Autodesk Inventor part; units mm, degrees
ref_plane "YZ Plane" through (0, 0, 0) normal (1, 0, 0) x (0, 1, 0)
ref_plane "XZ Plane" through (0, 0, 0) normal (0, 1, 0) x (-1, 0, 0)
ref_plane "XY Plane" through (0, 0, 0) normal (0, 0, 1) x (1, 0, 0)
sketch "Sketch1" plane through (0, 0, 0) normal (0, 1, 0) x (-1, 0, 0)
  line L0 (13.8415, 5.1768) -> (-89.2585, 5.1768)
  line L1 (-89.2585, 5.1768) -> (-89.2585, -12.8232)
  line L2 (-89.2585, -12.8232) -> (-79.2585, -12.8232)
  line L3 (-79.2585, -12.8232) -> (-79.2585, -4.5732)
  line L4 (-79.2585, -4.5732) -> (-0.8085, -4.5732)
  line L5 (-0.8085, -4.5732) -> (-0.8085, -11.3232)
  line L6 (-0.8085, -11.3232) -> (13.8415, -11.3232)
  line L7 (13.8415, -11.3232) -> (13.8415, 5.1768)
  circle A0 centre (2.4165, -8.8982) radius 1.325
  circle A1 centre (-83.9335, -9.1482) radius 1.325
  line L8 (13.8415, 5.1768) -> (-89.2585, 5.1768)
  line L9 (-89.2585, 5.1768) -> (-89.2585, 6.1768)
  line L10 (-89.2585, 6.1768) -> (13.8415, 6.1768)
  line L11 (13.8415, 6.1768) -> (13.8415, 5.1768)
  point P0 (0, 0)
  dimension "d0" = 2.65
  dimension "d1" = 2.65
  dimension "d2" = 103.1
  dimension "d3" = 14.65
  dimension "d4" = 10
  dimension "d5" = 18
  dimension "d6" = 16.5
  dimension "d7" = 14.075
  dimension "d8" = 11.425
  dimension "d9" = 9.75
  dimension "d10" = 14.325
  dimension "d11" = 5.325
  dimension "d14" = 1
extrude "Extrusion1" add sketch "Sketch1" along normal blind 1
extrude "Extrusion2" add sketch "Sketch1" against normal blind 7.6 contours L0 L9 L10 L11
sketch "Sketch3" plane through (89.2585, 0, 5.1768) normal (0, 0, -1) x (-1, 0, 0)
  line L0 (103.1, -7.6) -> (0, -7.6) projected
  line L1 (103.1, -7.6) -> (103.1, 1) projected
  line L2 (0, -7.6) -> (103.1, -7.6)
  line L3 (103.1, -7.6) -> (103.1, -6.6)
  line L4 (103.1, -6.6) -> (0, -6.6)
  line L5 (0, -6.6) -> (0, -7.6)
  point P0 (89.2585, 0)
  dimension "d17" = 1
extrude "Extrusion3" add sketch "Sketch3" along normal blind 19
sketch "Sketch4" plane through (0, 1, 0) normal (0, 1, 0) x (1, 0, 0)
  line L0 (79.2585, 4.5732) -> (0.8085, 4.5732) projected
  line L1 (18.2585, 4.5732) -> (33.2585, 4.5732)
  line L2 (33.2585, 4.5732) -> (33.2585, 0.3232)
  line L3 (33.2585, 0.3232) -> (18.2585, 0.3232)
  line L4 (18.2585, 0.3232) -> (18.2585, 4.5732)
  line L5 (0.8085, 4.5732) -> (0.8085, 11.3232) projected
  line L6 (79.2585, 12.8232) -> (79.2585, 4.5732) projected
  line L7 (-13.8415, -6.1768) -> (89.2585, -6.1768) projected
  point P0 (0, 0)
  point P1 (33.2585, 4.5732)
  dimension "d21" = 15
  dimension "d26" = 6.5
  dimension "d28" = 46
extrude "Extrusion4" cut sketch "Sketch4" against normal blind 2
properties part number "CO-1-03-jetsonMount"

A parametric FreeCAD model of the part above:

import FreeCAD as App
import Part
import Sketcher

doc = App.newDocument("Part")
body = doc.addObject("PartDesign::Body", "Body")

sketch1 = body.newObject("Sketcher::SketchObject", "Sketch")
sketch1.AttachmentSupport = (doc.getObject("XZ_Plane"), [""])
sketch1.MapMode = "FlatFace"
sketch1.addGeometry([
    Part.LineSegment(App.Vector(-13.8, -11.3, 0), App.Vector(-13.8, 6.2, 0)),
    Part.LineSegment(App.Vector(-13.8, 6.2, 0), App.Vector(89.3, 6.2, 0)),
    Part.LineSegment(App.Vector(89.3, 6.2, 0), App.Vector(89.3, -12.8, 0)),
    Part.LineSegment(App.Vector(89.3, -12.8, 0), App.Vector(79.3, -12.8, 0)),
    Part.LineSegment(App.Vector(79.3, -12.8, 0), App.Vector(79.3, -4.6, 0)),
    Part.LineSegment(App.Vector(79.3, -4.6, 0), App.Vector(0.8, -4.6, 0)),
    Part.LineSegment(App.Vector(0.8, -4.6, 0), App.Vector(0.8, -11.3, 0)),
    Part.LineSegment(App.Vector(0.8, -11.3, 0), App.Vector(-13.8, -11.3, 0)),
    Part.Circle(App.Vector(83.9, -9.1, 0), App.Vector(0, 0, 1), 1.3),
    Part.Circle(App.Vector(-2.4, -8.9, 0), App.Vector(0, 0, 1), 1.3),
], False)
sketch1.addConstraint([
    Sketcher.Constraint("Coincident", 0, 2, 1, 1),
    Sketcher.Constraint("Coincident", 1, 2, 2, 1),
    Sketcher.Constraint("Coincident", 2, 2, 3, 1),
    Sketcher.Constraint("Coincident", 3, 2, 4, 1),
    Sketcher.Constraint("Coincident", 4, 2, 5, 1),
    Sketcher.Constraint("Coincident", 5, 2, 6, 1),
    Sketcher.Constraint("Coincident", 6, 2, 7, 1),
    Sketcher.Constraint("Coincident", 7, 2, 0, 1),
    Sketcher.Constraint("Vertical", 0),
    Sketcher.Constraint("Horizontal", 1),
    Sketcher.Constraint("Vertical", 2),
    Sketcher.Constraint("Horizontal", 3),
    Sketcher.Constraint("Vertical", 4),
    Sketcher.Constraint("Horizontal", 5),
    Sketcher.Constraint("Vertical", 6),
    Sketcher.Constraint("Horizontal", 7),
    Sketcher.Constraint("Equal", 8, 9),
    Sketcher.Constraint("Diameter", 8, 2.65),
    Sketcher.Constraint("DistanceX", 3, 2, 3, 1, 10.0),
    Sketcher.Constraint("DistanceX", 1, 1, 1, 2, 103.1),
    Sketcher.Constraint("DistanceX", 7, 2, 7, 1, 14.65),
    Sketcher.Constraint("DistanceY", 2, 2, 2, 1, 19.0),
    Sketcher.Constraint("DistanceY", 0, 1, 0, 2, 17.5),
    Sketcher.Constraint("DistanceX", 0, 2, 9, 3, 11.425),
    Sketcher.Constraint("DistanceX", 8, 3, 1, 2, 5.325),
    Sketcher.Constraint("DistanceY", 4, 1, 4, 2, 8.25),
    Sketcher.Constraint("DistanceY", 8, 3, 9, 3, 0.25),
    Sketcher.Constraint("DistanceY", 9, 3, 0, 2, 15.075),
    Sketcher.Constraint("DistanceX", -1, 1, 8, 3, 83.9335),
    Sketcher.Constraint("DistanceY", 8, 3, -1, 1, 9.1482),
])
pad1 = body.newObject("PartDesign::Pad", "Pad")
pad1.Profile = sketch1
pad1.Length = 1
pad1.Reversed = True

sketch2 = body.newObject("Sketcher::SketchObject", "Sketch001")
sketch2.AttachmentSupport = (doc.getObject("XZ_Plane"), [""])
sketch2.MapMode = "FlatFace"
sketch2.addGeometry([
    Part.LineSegment(App.Vector(89.3, 5.2, 0), App.Vector(-13.8, 5.2, 0)),
    Part.LineSegment(App.Vector(-13.8, 5.2, 0), App.Vector(-13.8, 6.2, 0)),
    Part.LineSegment(App.Vector(-13.8, 6.2, 0), App.Vector(89.3, 6.2, 0)),
    Part.LineSegment(App.Vector(89.3, 6.2, 0), App.Vector(89.3, 5.2, 0)),
], False)
sketch2.addConstraint([
    Sketcher.Constraint("Coincident", 0, 2, 1, 1),
    Sketcher.Constraint("Coincident", 1, 2, 2, 1),
    Sketcher.Constraint("Coincident", 2, 2, 3, 1),
    Sketcher.Constraint("Coincident", 3, 2, 0, 1),
    Sketcher.Constraint("Horizontal", 0),
    Sketcher.Constraint("Vertical", 1),
    Sketcher.Constraint("Horizontal", 2),
    Sketcher.Constraint("Vertical", 3),
    Sketcher.Constraint("DistanceY", 1, 1, 1, 2, 1.0),
    Sketcher.Constraint("DistanceX", 0, 2, 0, 1, 103.1),
    Sketcher.Constraint("DistanceX", 0, 2, -1, 1, 13.8415),
    Sketcher.Constraint("DistanceY", -1, 1, 0, 2, 5.1768),
])
pad2 = body.newObject("PartDesign::Pad", "Pad001")
pad2.Profile = sketch2
pad2.Length = 7.6

sketch3 = body.newObject("Sketcher::SketchObject", "Sketch002")
sketch3.AttachmentSupport = (doc.getObject("XY_Plane"), [""])
sketch3.MapMode = "FlatFace"
sketch3.AttachmentOffset = App.Placement(App.Vector(0, 0, 5.1768), App.Rotation())
sketch3.addGeometry([
    Part.LineSegment(App.Vector(89.3, -7.6, 0), App.Vector(-13.8, -7.6, 0)),
    Part.LineSegment(App.Vector(-13.8, -7.6, 0), App.Vector(-13.8, -6.6, 0)),
    Part.LineSegment(App.Vector(-13.8, -6.6, 0), App.Vector(89.3, -6.6, 0)),
    Part.LineSegment(App.Vector(89.3, -6.6, 0), App.Vector(89.3, -7.6, 0)),
], False)
sketch3.addConstraint([
    Sketcher.Constraint("Coincident", 0, 2, 1, 1),
    Sketcher.Constraint("Coincident", 1, 2, 2, 1),
    Sketcher.Constraint("Coincident", 2, 2, 3, 1),
    Sketcher.Constraint("Coincident", 3, 2, 0, 1),
    Sketcher.Constraint("Horizontal", 0),
    Sketcher.Constraint("Vertical", 1),
    Sketcher.Constraint("Horizontal", 2),
    Sketcher.Constraint("Vertical", 3),
    Sketcher.Constraint("DistanceY", 1, 1, 1, 2, 1.0),
    Sketcher.Constraint("DistanceX", 0, 2, 0, 1, 103.1),
    Sketcher.Constraint("DistanceY", 0, 2, -1, 1, 7.6),
    Sketcher.Constraint("DistanceX", 0, 2, -1, 1, 13.8415),
])
pad3 = body.newObject("PartDesign::Pad", "Pad002")
pad3.Profile = sketch3
pad3.Length = 19
pad3.Reversed = True

sketch4 = body.newObject("Sketcher::SketchObject", "Sketch003")
sketch4.AttachmentSupport = (doc.getObject("XZ_Plane"), [""])
sketch4.MapMode = "FlatFace"
sketch4.AttachmentOffset = App.Placement(App.Vector(0, 0, -1), App.Rotation())
sketch4.addGeometry([
    Part.LineSegment(App.Vector(33.3, -0.3, 0), App.Vector(33.3, -4.6, 0)),
    Part.LineSegment(App.Vector(33.3, -4.6, 0), App.Vector(18.3, -4.6, 0)),
    Part.LineSegment(App.Vector(18.3, -4.6, 0), App.Vector(18.3, -0.3, 0)),
    Part.LineSegment(App.Vector(18.3, -0.3, 0), App.Vector(33.3, -0.3, 0)),
], False)
sketch4.addConstraint([
    Sketcher.Constraint("Coincident", 0, 2, 1, 1),
    Sketcher.Constraint("Coincident", 1, 2, 2, 1),
    Sketcher.Constraint("Coincident", 2, 2, 3, 1),
    Sketcher.Constraint("Coincident", 3, 2, 0, 1),
    Sketcher.Constraint("Vertical", 0),
    Sketcher.Constraint("Horizontal", 1),
    Sketcher.Constraint("Vertical", 2),
    Sketcher.Constraint("Horizontal", 3),
    Sketcher.Constraint("DistanceX", 1, 2, 1, 1, 15.0),
    Sketcher.Constraint("DistanceY", 0, 2, 0, 1, 4.25),
    Sketcher.Constraint("DistanceX", -1, 1, 0, 2, 33.2585),
    Sketcher.Constraint("DistanceY", 0, 2, -1, 1, 4.5732),
])
pocket1 = body.newObject("PartDesign::Pocket", "Pocket")
pocket1.Profile = sketch4
pocket1.Length = 2
pocket1.Reversed = True

doc.recompute()
